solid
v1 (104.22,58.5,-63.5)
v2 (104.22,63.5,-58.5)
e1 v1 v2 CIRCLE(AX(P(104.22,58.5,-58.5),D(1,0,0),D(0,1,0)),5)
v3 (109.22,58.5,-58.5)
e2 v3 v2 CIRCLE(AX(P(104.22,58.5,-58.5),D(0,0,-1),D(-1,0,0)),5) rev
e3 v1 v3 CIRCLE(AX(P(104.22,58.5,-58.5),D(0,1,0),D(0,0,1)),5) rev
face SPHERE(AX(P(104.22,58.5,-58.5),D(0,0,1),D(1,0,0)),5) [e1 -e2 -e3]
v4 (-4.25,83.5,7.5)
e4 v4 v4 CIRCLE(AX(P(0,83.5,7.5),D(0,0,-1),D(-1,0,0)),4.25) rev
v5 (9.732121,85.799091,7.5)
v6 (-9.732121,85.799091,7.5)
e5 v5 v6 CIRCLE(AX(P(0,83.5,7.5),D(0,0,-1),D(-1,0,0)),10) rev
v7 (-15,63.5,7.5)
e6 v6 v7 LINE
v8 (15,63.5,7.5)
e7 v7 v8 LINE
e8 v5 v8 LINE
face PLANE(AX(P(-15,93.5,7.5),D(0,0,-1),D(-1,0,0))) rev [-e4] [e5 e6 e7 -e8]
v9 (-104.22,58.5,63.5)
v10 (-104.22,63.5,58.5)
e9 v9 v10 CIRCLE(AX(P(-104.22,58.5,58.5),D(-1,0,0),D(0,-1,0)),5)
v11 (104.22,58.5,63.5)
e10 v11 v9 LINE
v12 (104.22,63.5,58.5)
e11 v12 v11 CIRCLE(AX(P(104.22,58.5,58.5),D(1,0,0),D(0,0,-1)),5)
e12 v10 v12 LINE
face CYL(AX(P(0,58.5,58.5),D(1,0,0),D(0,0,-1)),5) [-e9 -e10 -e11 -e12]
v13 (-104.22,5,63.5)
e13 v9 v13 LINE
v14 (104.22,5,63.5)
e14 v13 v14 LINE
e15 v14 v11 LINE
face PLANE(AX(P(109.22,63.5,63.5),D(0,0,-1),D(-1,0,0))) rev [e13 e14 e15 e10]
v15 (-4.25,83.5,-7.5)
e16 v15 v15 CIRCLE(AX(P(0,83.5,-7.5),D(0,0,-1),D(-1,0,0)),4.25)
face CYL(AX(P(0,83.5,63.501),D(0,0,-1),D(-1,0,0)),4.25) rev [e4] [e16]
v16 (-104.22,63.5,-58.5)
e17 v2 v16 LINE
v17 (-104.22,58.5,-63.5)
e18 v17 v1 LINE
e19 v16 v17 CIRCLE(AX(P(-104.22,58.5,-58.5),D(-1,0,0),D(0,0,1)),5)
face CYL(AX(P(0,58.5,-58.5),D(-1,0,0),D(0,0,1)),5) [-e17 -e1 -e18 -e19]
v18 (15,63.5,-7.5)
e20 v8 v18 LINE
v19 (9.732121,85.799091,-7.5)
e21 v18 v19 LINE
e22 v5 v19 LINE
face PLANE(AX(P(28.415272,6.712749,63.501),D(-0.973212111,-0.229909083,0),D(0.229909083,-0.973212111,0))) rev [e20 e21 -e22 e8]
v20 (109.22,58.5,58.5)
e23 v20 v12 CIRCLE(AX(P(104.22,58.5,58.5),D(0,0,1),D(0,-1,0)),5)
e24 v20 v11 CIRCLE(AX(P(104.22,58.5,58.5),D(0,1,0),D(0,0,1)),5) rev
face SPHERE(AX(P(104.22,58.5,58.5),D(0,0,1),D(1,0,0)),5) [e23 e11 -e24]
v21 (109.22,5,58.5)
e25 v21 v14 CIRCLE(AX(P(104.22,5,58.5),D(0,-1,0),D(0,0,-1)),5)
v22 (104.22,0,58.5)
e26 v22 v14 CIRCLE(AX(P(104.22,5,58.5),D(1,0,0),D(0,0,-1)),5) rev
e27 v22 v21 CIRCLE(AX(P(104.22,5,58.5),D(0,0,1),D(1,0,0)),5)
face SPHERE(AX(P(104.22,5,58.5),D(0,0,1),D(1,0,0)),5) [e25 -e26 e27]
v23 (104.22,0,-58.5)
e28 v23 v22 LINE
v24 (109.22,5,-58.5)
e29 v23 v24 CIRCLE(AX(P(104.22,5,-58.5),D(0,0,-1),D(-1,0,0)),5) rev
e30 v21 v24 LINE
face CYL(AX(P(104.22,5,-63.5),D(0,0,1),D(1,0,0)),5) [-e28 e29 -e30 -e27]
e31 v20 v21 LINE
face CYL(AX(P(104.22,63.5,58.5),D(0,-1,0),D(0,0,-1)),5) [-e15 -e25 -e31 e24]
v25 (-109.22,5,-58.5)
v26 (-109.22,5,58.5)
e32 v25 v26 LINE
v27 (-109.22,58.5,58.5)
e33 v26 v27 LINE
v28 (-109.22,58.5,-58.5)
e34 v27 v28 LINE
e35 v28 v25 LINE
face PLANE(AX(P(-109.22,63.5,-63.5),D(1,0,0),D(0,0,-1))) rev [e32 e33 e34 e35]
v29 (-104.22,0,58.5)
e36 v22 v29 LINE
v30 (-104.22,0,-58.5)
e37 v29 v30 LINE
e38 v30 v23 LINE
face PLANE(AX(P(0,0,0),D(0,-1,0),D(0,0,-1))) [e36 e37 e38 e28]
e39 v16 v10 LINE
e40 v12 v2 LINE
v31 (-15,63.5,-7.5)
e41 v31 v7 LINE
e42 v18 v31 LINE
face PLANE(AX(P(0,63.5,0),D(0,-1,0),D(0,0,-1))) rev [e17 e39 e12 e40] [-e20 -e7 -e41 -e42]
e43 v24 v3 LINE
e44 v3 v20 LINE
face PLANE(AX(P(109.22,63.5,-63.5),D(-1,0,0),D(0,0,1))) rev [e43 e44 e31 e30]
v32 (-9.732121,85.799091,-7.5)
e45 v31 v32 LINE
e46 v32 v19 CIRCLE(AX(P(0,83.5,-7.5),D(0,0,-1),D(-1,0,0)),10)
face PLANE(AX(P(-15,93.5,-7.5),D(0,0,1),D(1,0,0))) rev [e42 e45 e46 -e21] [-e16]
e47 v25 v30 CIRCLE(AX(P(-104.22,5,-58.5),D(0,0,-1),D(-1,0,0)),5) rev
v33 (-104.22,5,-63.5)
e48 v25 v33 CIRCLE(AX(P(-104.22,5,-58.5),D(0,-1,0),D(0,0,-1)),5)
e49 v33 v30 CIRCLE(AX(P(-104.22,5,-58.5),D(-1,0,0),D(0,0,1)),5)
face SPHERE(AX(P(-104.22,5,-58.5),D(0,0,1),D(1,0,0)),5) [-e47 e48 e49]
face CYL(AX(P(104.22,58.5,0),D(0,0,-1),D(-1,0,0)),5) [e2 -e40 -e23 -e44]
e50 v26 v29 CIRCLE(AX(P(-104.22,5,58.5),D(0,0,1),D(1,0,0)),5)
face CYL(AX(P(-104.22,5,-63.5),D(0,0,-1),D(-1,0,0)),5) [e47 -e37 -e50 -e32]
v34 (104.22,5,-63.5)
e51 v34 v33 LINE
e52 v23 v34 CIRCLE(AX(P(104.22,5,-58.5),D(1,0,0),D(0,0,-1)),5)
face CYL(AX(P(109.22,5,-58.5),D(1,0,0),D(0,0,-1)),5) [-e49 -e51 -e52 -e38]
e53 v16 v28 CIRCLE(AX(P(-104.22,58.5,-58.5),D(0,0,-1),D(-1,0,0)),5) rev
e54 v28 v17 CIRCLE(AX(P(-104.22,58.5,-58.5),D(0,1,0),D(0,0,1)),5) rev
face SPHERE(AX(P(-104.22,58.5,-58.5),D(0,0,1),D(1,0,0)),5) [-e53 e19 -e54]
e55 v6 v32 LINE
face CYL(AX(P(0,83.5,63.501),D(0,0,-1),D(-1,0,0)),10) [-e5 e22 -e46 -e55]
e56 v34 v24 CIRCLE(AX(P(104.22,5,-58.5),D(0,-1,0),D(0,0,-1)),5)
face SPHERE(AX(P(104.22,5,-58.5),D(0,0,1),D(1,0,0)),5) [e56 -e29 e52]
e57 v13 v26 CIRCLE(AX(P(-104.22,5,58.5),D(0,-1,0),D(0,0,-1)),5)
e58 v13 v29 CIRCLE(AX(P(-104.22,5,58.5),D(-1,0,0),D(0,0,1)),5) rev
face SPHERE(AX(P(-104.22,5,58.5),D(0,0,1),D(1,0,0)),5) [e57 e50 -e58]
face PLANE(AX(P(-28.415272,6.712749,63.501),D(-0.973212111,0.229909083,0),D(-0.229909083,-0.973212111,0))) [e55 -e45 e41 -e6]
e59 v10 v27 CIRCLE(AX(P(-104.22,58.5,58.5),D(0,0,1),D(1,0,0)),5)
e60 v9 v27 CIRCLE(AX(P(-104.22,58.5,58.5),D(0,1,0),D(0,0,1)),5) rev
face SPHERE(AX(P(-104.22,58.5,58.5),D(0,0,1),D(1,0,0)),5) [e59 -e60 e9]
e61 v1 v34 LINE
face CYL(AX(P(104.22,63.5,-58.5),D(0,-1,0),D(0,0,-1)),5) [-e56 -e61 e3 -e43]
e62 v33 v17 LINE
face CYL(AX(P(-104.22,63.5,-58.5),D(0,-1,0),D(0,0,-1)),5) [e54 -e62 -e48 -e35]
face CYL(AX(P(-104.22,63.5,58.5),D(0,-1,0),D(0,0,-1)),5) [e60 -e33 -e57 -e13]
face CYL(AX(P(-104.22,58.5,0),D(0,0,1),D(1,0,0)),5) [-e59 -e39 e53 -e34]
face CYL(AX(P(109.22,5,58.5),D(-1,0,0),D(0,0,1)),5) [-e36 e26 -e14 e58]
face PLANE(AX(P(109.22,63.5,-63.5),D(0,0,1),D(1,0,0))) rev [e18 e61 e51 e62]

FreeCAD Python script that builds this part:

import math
import FreeCAD as App
import Part
import Sketcher
from FreeCAD import Vector
Q = App.Units.Quantity


def edges_at(feature, points):
    """Names of the edges that pass closest to the given points."""
    edges = feature.Shape.Edges
    near = lambda p: min(range(len(edges)), key=lambda i: edges[i].distToShape(Part.Vertex(*p))[0])
    return sorted({f"Edge{near(p) + 1}" for p in points})


def add_polygon(sketch, points):
    """Adds a closed chain of lines whose ends are joined by coincident constraints."""
    first, n = sketch.GeometryCount, len(points)
    for a, b in zip(points, points[1:] + points[:1]):
        sketch.addGeometry(Part.LineSegment(App.Vector(*a, 0), App.Vector(*b, 0)), False)
    for i in range(n):
        sketch.addConstraint(Sketcher.Constraint("Coincident", first + i, 2, first + (i + 1) % n, 1))

doc = App.newDocument("Part")
body = doc.addObject("PartDesign::Body", "Body")

# Sketch on XZ plane
sketch1 = body.newObject("Sketcher::SketchObject", "Sketch")
sketch1.AttachmentSupport = (doc.getObject("XZ_Plane"), [""])
sketch1.MapMode = "FlatFace"
add_polygon(sketch1, [(-109, -64), (-109, 64), (109, 64), (109, -64)])  # lines 0-3
sketch1.addConstraint([
    Sketcher.Constraint("Vertical", 0),
    Sketcher.Constraint("Horizontal", 1),
    Sketcher.Constraint("Vertical", 2),
    Sketcher.Constraint("Horizontal", 3),
    Sketcher.Constraint("Symmetric", 0, 2, 2, 2, -1, 1),
    Sketcher.Constraint("DistanceY", 0, 1, 0, 2, Q("127 mm")),
    Sketcher.Constraint("DistanceX", 1, 1, 1, 2, Q("218.44 mm")),
])
pad1 = body.newObject("PartDesign::Pad", "Pad")
pad1.Profile = sketch1
pad1.Length = 63.5
pad1.Reversed = True

# Sketch on XZ plane
sketch2 = body.newObject("Sketcher::SketchObject", "Sketch001")
sketch2.AttachmentSupport = (doc.getObject("XZ_Plane"), [""])
sketch2.MapMode = "FlatFace"
sketch2.AttachmentOffset = App.Placement(Vector(0, 0, -63.5), App.Rotation())
add_polygon(sketch2, [(-15, -8), (-15, 8), (15, 8), (15, -8)])  # lines 0-3
sketch2.addConstraint([
    Sketcher.Constraint("Vertical", 0),
    Sketcher.Constraint("Horizontal", 1),
    Sketcher.Constraint("Vertical", 2),
    Sketcher.Constraint("Horizontal", 3),
    Sketcher.Constraint("Symmetric", 0, 2, 2, 2, -1, 1),
    Sketcher.Constraint("DistanceX", 1, 1, 1, 2, Q("30 mm")),
    Sketcher.Constraint("DistanceY", 0, 1, 0, 2, Q("15 mm")),
])
pad2 = body.newObject("PartDesign::Pad", "Pad001")
pad2.Profile = sketch2
pad2.Length = 30
pad2.Reversed = True

# Sketch on XY plane
sketch3 = body.newObject("Sketcher::SketchObject", "Sketch002")
sketch3.AttachmentSupport = (doc.getObject("XY_Plane"), [""])
sketch3.MapMode = "FlatFace"
sketch3.AttachmentOffset = App.Placement(Vector(0, 0, -7.5), App.Rotation())
sketch3.addGeometry([
    Part.ArcOfCircle(Part.Circle(Vector(0, 83.5, 0), Vector(0, 0, 1), 4.2), math.radians(90), math.radians(180)),
    Part.LineSegment(Vector(0, 87.8, 0), Vector(0, 79.2, 0)),
    Part.ArcOfCircle(Part.Circle(Vector(0, 83.5, 0), Vector(0, 0, 1), 4.2), math.radians(180), math.radians(270)),
], False)
sketch3.addConstraint([
    Sketcher.Constraint("Coincident", 0, 1, 1, 1),
    Sketcher.Constraint("Coincident", 1, 2, 2, 2),
    Sketcher.Constraint("Tangent", 2, 1, 0, 2),
    Sketcher.Constraint("Vertical", 1),
    Sketcher.Constraint("Equal", 0, 2),
    Sketcher.Constraint("PointOnObject", 0, 3, -2),
    Sketcher.Constraint("PointOnObject", 0, 1, -2),
    Sketcher.Constraint("Horizontal", 0, 3, 2, 1),
    Sketcher.Constraint("Radius", 0, Q("4.25 mm")),
    Sketcher.Constraint("DistanceY", -1, 1, 0, 3, Q("83.5 mm")),
])
pocket1 = body.newObject("PartDesign::Pocket", "Pocket")
pocket1.Profile = sketch3
pocket1.Type = "UpToFirst"
pocket1.Reversed = True

# Sketch on XY plane
sketch4 = body.newObject("Sketcher::SketchObject", "Sketch003")
sketch4.AttachmentSupport = (doc.getObject("XY_Plane"), [""])
sketch4.MapMode = "FlatFace"
sketch4.AttachmentOffset = App.Placement(Vector(0, 0, -7.5), App.Rotation())
sketch4.addGeometry([
    Part.LineSegment(Vector(0, 79.2, 0), Vector(0, 87.8, 0)),
    Part.ArcOfCircle(Part.Circle(Vector(0, 83.5, 0), Vector(0, 0, 1), 4.2), math.radians(-90), math.radians(90)),
], False)
sketch4.addConstraint([
    Sketcher.Constraint("Coincident", 0, 1, 1, 1),
    Sketcher.Constraint("Coincident", 1, 2, 0, 2),
    Sketcher.Constraint("Vertical", 0),
    Sketcher.Constraint("PointOnObject", 1, 3, -2),
    Sketcher.Constraint("PointOnObject", 0, 1, -2),
    Sketcher.Constraint("Radius", 1, Q("4.25 mm")),
    Sketcher.Constraint("DistanceY", -1, 1, 1, 3, Q("83.5 mm")),
])
pocket2 = body.newObject("PartDesign::Pocket", "Pocket001")
pocket2.Profile = sketch4
pocket2.Type = "UpToFirst"
pocket2.Reversed = True

# Sketch on XY plane
sketch5 = body.newObject("Sketcher::SketchObject", "Sketch004")
sketch5.AttachmentSupport = (doc.getObject("XY_Plane"), [""])
sketch5.MapMode = "FlatFace"
sketch5.AttachmentOffset = App.Placement(Vector(0, 0, -7.5), App.Rotation())
sketch5.addGeometry([
    Part.ArcOfCircle(Part.Circle(Vector(0, 83.5, 0), Vector(0, 0, 1), 4.2), math.radians(90), math.radians(180)),
    Part.LineSegment(Vector(0, 87.8, 0), Vector(0, 79.2, 0)),
    Part.ArcOfCircle(Part.Circle(Vector(0, 83.5, 0), Vector(0, 0, 1), 4.2), math.radians(180), math.radians(270)),
], False)
sketch5.addConstraint([
    Sketcher.Constraint("Coincident", 0, 1, 1, 1),
    Sketcher.Constraint("Coincident", 1, 2, 2, 2),
    Sketcher.Constraint("Tangent", 2, 1, 0, 2),
    Sketcher.Constraint("Vertical", 1),
    Sketcher.Constraint("Equal", 0, 2),
    Sketcher.Constraint("PointOnObject", 0, 3, -2),
    Sketcher.Constraint("PointOnObject", 0, 1, -2),
    Sketcher.Constraint("Horizontal", 0, 3, 2, 1),
    Sketcher.Constraint("Radius", 0, Q("4.25 mm")),
    Sketcher.Constraint("DistanceY", -1, 1, 0, 3, Q("83.5 mm")),
])
pocket3 = body.newObject("PartDesign::Pocket", "Pocket002")
pocket3.Profile = sketch5
pocket3.Length = 15
pocket3.Reversed = True

# Sketch on XY plane
sketch6 = body.newObject("Sketcher::SketchObject", "Sketch005")
sketch6.AttachmentSupport = (doc.getObject("XY_Plane"), [""])
sketch6.MapMode = "FlatFace"
sketch6.AttachmentOffset = App.Placement(Vector(0, 0, -7.5), App.Rotation())
sketch6.addGeometry([
    Part.LineSegment(Vector(0, 79.2, 0), Vector(0, 87.8, 0)),
    Part.ArcOfCircle(Part.Circle(Vector(0, 83.5, 0), Vector(0, 0, 1), 4.2), math.radians(-90), math.radians(90)),
], False)
sketch6.addConstraint([
    Sketcher.Constraint("Coincident", 0, 1, 1, 1),
    Sketcher.Constraint("Coincident", 1, 2, 0, 2),
    Sketcher.Constraint("Vertical", 0),
    Sketcher.Constraint("PointOnObject", 1, 3, -2),
    Sketcher.Constraint("PointOnObject", 0, 1, -2),
    Sketcher.Constraint("Radius", 1, Q("4.25 mm")),
    Sketcher.Constraint("DistanceY", -1, 1, 1, 3, Q("83.5 mm")),
])
pocket4 = body.newObject("PartDesign::Pocket", "Pocket003")
pocket4.Profile = sketch6
pocket4.Length = 15
pocket4.Reversed = True

# Sketch on XY plane
sketch7 = body.newObject("Sketcher::SketchObject", "Sketch006")
sketch7.AttachmentSupport = (doc.getObject("XY_Plane"), [""])
sketch7.MapMode = "FlatFace"
sketch7.AttachmentOffset = App.Placement(Vector(0, 0, -7.5), App.Rotation())
sketch7.addGeometry([
    Part.LineSegment(Vector(-15, 94, 0), Vector(0, 94, 0)),
    Part.ArcOfCircle(Part.Circle(Vector(0, 84, 0), Vector(0, 0, 1), 10), math.radians(90), math.radians(167)),
    Part.LineSegment(Vector(-10, 86, 0), Vector(-15, 64, 0)),
    Part.LineSegment(Vector(-15, 64, 0), Vector(-15, 94, 0)),
], False)
sketch7.addConstraint([
    Sketcher.Constraint("Tangent", 0, 2, 1, 1),
    Sketcher.Constraint("Tangent", 1, 2, 2, 1),
    Sketcher.Constraint("Coincident", 2, 2, 3, 1),
    Sketcher.Constraint("Coincident", 3, 2, 0, 1),
    Sketcher.Constraint("Horizontal", 0),
    Sketcher.Constraint("Vertical", 3),
    Sketcher.Constraint("PointOnObject", 1, 3, -2),
    Sketcher.Constraint("Radius", 1, Q("10 mm")),
    Sketcher.Constraint("DistanceX", 0, 1, 0, 2, Q("15 mm")),
    Sketcher.Constraint("DistanceY", 3, 1, 3, 2, Q("30 mm")),
    Sketcher.Constraint("DistanceY", -1, 1, 1, 3, Q("83.5 mm")),
])
pocket5 = body.newObject("PartDesign::Pocket", "Pocket004")
pocket5.Profile = sketch7
pocket5.Type = "UpToFirst"
pocket5.Reversed = True

# Sketch on XY plane
sketch8 = body.newObject("Sketcher::SketchObject", "Sketch007")
sketch8.AttachmentSupport = (doc.getObject("XY_Plane"), [""])
sketch8.MapMode = "FlatFace"
sketch8.AttachmentOffset = App.Placement(Vector(0, 0, -7.5), App.Rotation())
sketch8.addGeometry([
    Part.ArcOfCircle(Part.Circle(Vector(0, 84, 0), Vector(0, 0, 1), 10), math.radians(13), math.radians(90)),
    Part.LineSegment(Vector(0, 94, 0), Vector(15, 94, 0)),
    Part.LineSegment(Vector(15, 94, 0), Vector(15, 64, 0)),
    Part.LineSegment(Vector(15, 64, 0), Vector(10, 86, 0)),
], False)
sketch8.addConstraint([
    Sketcher.Constraint("Tangent", 0, 2, 1, 1),
    Sketcher.Constraint("Coincident", 1, 2, 2, 1),
    Sketcher.Constraint("Coincident", 2, 2, 3, 1),
    Sketcher.Constraint("Tangent", 3, 2, 0, 1),
    Sketcher.Constraint("Horizontal", 1),
    Sketcher.Constraint("Vertical", 2),
    Sketcher.Constraint("PointOnObject", 0, 3, -2),
    Sketcher.Constraint("Radius", 0, Q("10 mm")),
    Sketcher.Constraint("DistanceX", 1, 1, 1, 2, Q("15 mm")),
    Sketcher.Constraint("DistanceY", 2, 2, 2, 1, Q("30 mm")),
    Sketcher.Constraint("DistanceY", -1, 1, 0, 3, Q("83.5 mm")),
])
pocket6 = body.newObject("PartDesign::Pocket", "Pocket005")
pocket6.Profile = sketch8
pocket6.Type = "UpToFirst"
pocket6.Reversed = True
doc.recompute()

fillet = body.newObject("PartDesign::Fillet", "Fillet")
fillet.Base = (pocket6, edges_at(pocket6, [
    (109.22, 63.5, 0),
    (0, 63.5, -63.5),
    (-109.22, 63.5, 0),
    (0, 0, -63.5),
    (109.22, 0, 0),
    (0, 0, 63.5),
    (-109.22, 0, 0),
    (0, 63.5, 63.5),
    (-109.22, 31.75, -63.5),
    (109.22, 31.75, -63.5),
    (109.22, 31.75, 63.5),
    (-109.22, 31.75, 63.5),
]))
fillet.Radius = 5

doc.recompute()
